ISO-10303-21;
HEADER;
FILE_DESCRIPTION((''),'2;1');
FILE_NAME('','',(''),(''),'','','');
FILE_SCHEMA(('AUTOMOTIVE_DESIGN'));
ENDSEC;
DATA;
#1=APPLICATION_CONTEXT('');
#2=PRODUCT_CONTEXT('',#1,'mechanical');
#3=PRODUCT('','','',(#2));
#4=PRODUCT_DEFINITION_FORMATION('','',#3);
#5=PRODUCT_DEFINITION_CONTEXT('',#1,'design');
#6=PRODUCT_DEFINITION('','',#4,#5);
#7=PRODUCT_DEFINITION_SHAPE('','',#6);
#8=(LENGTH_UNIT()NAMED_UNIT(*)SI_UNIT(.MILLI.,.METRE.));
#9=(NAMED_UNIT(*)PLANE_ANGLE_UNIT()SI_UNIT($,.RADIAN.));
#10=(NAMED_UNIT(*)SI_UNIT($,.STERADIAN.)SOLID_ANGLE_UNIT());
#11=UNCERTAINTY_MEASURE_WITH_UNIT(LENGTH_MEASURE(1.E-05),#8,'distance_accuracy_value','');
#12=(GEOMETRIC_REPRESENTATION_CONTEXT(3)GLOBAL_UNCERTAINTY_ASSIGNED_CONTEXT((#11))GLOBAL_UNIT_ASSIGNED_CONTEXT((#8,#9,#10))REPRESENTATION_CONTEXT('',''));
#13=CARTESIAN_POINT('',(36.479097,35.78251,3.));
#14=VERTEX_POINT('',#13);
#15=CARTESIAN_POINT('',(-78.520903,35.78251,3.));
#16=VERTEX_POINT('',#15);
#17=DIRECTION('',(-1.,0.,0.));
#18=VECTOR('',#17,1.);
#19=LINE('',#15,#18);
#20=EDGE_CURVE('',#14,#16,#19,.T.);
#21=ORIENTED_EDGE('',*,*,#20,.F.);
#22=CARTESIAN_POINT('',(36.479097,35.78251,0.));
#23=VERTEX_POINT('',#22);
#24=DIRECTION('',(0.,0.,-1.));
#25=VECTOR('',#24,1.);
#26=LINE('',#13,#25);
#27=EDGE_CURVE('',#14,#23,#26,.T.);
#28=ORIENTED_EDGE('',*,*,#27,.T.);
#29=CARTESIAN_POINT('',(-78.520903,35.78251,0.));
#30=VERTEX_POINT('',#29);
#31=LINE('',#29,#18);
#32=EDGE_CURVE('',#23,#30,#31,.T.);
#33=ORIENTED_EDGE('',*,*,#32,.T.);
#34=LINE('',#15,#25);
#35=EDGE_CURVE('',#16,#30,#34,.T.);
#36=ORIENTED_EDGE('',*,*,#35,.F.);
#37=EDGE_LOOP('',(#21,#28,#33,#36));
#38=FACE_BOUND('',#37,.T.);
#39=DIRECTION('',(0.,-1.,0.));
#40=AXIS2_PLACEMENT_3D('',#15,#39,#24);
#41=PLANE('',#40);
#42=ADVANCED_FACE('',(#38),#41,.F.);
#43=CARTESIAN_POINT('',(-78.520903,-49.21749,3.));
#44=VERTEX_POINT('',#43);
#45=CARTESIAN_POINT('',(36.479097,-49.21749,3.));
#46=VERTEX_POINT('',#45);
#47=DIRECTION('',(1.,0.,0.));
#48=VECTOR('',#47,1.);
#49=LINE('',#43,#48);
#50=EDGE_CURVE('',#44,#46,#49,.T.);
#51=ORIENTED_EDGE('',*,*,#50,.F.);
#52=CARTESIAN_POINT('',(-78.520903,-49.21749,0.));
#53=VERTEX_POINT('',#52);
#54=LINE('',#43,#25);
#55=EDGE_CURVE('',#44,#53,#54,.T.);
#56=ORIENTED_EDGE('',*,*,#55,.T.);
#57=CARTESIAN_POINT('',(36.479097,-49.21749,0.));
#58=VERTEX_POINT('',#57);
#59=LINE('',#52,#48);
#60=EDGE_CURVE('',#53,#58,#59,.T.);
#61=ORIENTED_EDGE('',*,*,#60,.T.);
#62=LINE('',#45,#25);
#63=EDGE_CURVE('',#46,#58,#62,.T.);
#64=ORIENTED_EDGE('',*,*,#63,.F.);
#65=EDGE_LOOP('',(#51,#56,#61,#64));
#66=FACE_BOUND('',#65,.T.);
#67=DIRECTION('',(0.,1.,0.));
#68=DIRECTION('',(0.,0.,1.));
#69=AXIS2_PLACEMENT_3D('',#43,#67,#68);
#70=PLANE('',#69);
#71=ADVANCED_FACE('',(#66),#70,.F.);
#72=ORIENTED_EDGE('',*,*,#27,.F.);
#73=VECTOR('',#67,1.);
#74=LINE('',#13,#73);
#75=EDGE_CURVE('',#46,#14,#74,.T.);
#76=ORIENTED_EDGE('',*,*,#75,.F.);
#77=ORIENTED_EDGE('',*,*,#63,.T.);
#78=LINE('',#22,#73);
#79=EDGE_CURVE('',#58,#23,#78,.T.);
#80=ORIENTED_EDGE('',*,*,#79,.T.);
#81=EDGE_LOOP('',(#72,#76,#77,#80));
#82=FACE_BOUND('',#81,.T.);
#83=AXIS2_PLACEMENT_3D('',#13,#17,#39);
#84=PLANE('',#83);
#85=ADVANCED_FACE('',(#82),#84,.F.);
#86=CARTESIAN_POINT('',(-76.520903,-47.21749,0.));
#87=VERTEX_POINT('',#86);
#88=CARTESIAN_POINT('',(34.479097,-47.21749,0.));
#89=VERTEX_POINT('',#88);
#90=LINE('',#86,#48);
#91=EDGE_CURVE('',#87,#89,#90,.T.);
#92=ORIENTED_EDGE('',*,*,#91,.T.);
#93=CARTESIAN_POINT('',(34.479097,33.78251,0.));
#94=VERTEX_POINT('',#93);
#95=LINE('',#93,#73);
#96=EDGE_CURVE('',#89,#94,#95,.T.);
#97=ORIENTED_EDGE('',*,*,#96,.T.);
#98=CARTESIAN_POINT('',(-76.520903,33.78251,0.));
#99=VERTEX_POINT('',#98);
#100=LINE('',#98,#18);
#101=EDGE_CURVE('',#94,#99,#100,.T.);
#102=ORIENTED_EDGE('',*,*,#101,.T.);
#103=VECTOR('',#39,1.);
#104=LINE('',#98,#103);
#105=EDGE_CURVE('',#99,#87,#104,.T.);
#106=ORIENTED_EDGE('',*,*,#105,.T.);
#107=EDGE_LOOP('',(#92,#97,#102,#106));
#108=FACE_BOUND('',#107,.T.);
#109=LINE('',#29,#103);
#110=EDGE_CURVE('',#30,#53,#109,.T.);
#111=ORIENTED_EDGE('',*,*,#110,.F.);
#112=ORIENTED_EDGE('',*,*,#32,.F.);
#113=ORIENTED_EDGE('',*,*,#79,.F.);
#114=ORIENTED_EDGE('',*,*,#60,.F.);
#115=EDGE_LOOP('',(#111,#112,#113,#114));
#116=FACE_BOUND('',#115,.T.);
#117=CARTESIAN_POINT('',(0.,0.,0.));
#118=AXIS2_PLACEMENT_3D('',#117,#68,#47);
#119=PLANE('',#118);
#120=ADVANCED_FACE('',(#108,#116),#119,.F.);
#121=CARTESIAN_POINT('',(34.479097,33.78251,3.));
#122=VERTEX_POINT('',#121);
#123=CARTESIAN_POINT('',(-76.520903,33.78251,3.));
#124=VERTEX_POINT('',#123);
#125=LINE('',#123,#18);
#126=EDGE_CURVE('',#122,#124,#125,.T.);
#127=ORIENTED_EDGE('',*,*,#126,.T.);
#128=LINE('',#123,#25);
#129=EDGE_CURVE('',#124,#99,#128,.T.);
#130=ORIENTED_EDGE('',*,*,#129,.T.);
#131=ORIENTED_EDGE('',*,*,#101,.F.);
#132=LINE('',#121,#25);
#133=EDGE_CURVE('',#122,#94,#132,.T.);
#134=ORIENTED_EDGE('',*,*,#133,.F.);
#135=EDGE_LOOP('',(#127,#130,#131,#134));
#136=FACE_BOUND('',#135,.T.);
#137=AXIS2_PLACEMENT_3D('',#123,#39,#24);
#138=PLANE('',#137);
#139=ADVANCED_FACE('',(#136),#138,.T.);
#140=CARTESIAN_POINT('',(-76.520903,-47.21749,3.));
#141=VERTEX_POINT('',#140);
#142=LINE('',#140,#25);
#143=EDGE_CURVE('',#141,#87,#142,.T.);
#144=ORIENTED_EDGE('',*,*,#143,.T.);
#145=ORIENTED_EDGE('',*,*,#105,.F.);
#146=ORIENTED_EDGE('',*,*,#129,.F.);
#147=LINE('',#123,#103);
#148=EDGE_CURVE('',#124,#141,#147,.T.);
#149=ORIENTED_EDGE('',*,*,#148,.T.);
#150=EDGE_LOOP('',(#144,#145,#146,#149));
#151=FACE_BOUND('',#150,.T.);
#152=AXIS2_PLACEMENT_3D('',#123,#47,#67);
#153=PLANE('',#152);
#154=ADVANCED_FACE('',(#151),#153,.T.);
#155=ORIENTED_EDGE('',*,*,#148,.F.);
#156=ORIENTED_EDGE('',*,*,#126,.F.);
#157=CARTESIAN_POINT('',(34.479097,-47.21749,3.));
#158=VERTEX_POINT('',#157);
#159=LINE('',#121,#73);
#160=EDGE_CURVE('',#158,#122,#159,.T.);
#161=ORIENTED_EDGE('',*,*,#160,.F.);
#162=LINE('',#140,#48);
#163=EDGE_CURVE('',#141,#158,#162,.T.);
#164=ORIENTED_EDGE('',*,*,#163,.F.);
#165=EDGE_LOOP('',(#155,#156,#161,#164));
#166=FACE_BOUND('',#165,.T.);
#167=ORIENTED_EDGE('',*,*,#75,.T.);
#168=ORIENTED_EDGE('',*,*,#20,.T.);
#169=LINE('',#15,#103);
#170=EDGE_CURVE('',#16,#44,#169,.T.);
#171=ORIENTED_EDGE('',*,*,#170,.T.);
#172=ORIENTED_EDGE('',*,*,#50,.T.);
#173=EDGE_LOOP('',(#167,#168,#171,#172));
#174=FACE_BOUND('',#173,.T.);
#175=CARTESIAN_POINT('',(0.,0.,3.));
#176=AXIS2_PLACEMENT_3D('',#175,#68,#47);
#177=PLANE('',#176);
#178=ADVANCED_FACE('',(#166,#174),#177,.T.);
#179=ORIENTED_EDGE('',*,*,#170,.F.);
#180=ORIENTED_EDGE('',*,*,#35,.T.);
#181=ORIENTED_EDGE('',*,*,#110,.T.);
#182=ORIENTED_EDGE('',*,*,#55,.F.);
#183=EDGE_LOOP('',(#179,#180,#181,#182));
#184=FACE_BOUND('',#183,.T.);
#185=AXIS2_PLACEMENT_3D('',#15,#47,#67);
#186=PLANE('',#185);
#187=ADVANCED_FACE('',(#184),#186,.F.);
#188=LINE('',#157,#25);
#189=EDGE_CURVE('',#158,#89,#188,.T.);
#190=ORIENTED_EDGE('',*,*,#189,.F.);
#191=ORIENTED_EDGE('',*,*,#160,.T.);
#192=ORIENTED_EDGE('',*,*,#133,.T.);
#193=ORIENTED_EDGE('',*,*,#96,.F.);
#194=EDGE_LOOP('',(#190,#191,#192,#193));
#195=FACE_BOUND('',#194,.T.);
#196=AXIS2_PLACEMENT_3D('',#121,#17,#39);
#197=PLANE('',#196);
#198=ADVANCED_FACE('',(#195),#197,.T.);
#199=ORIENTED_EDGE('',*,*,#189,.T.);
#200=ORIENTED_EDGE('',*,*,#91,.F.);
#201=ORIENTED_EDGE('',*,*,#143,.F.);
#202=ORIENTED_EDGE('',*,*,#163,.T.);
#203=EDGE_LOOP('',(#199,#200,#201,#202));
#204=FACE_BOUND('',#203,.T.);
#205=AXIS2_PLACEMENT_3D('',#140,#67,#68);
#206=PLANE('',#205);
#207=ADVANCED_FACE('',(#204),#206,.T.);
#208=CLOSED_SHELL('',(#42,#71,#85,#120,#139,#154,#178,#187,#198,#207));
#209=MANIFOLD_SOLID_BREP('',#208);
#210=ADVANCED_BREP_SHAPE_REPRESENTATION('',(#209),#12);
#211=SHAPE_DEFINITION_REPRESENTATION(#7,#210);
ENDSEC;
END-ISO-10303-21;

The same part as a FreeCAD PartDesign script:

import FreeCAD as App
import Part
import Sketcher
from FreeCAD import Vector
Q = App.Units.Quantity


def add_polygon(sketch, points):
    """Adds a closed chain of lines whose ends are joined by coincident constraints."""
    first, n = sketch.GeometryCount, len(points)
    for a, b in zip(points, points[1:] + points[:1]):
        sketch.addGeometry(Part.LineSegment(App.Vector(*a, 0), App.Vector(*b, 0)), False)
    for i in range(n):
        sketch.addConstraint(Sketcher.Constraint("Coincident", first + i, 2, first + (i + 1) % n, 1))

doc = App.newDocument("Part")
body = doc.addObject("PartDesign::Body", "Body")

# Sketch on XY plane
sketch1 = body.newObject("Sketcher::SketchObject", "Sketch")
sketch1.AttachmentSupport = (doc.getObject("XY_Plane"), [""])
sketch1.MapMode = "FlatFace"
add_polygon(sketch1, [(-78.520903, 35.78251), (-78.520903, -49.21749), (36.479097, -49.21749), (36.479097, 35.78251)])  # lines 0-3
add_polygon(sketch1, [(34.479097, -47.21749), (-76.520903, -47.21749), (-76.520903, 33.78251), (34.479097, 33.78251)])  # lines 4-7
sketch1.addConstraint([
    Sketcher.Constraint("Vertical", 0),
    Sketcher.Constraint("Horizontal", 1),
    Sketcher.Constraint("Vertical", 2),
    Sketcher.Constraint("Horizontal", 3),
    Sketcher.Constraint("Horizontal", 4),
    Sketcher.Constraint("Vertical", 5),
    Sketcher.Constraint("Horizontal", 6),
    Sketcher.Constraint("Vertical", 7),
    Sketcher.Constraint("DistanceX", 1, 1, 1, 2, Q("115 mm")),
    Sketcher.Constraint("DistanceX", 4, 2, 4, 1, Q("111 mm")),
    Sketcher.Constraint("DistanceY", 0, 2, 0, 1, Q("85 mm")),
    Sketcher.Constraint("DistanceY", 5, 1, 5, 2, Q("81 mm")),
    Sketcher.Constraint("DistanceX", 0, 2, 4, 2, Q("2 mm")),
    Sketcher.Constraint("DistanceY", 0, 2, 4, 2, Q("2 mm")),
    Sketcher.Constraint("DistanceY", 0, 2, -1, 1, Q("49.21749 mm")),
    Sketcher.Constraint("DistanceX", 0, 2, -1, 1, Q("78.520903 mm")),
])
pad1 = body.newObject("PartDesign::Pad", "Pad")
pad1.Profile = sketch1
pad1.Length = 3

doc.recompute()
